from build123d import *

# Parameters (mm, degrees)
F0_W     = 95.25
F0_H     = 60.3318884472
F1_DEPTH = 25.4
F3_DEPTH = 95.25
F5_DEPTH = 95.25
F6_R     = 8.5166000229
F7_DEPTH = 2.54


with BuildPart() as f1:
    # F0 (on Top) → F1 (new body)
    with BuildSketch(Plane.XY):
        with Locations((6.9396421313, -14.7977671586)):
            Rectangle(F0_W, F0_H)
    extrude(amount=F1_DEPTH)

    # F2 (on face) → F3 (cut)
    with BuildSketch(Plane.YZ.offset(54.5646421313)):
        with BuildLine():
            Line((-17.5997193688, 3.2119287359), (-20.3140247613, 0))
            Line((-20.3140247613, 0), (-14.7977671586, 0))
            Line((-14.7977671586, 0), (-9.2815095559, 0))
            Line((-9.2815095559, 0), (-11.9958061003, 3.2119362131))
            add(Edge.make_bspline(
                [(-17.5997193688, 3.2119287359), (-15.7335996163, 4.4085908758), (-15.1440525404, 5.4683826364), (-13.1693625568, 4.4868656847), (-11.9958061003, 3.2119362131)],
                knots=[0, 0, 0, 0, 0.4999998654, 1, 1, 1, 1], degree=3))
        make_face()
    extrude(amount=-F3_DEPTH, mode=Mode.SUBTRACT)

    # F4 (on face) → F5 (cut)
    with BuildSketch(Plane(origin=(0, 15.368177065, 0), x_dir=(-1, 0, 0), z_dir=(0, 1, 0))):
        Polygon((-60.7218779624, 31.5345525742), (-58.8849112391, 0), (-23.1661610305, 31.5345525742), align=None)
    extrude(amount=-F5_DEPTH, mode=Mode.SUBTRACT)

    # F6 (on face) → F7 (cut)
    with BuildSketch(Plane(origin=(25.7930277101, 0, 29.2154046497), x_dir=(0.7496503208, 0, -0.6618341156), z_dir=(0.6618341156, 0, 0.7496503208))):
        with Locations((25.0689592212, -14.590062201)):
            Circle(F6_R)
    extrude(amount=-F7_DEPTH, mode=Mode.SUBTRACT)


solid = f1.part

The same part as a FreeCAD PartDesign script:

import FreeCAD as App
import Part
import Sketcher

V = App.Vector
Q = App.Units.Quantity

doc = App.newDocument("Part")
body = doc.addObject("PartDesign::Body", "Body")

sketch1 = body.newObject("Sketcher::SketchObject", "Sketch")
sketch1.AttachmentSupport = (doc.getObject("XY_Plane"), [""])
sketch1.MapMode = "FlatFace"
sketch1.addGeometry(Part.LineSegment(V(-40.685358, 15.368177, 0), V(-40.685358, -44.963711, 0)), False)
sketch1.addGeometry(Part.LineSegment(V(-40.685358, -44.963711, 0), V(54.564642, -44.963711, 0)), False)
sketch1.addGeometry(Part.LineSegment(V(54.564642, -44.963711, 0), V(54.564642, 15.368177, 0)), False)
sketch1.addGeometry(Part.LineSegment(V(54.564642, 15.368177, 0), V(-40.685358, 15.368177, 0)), False)
sketch1.addConstraint(Sketcher.Constraint("Coincident", 0, 2, 1, 1))
sketch1.addConstraint(Sketcher.Constraint("Coincident", 1, 2, 2, 1))
sketch1.addConstraint(Sketcher.Constraint("Coincident", 2, 2, 3, 1))
sketch1.addConstraint(Sketcher.Constraint("Coincident", 3, 2, 0, 1))
sketch1.addConstraint(Sketcher.Constraint("Vertical", 0))
sketch1.addConstraint(Sketcher.Constraint("Horizontal", 1))
sketch1.addConstraint(Sketcher.Constraint("Vertical", 2))
sketch1.addConstraint(Sketcher.Constraint("Horizontal", 3))
sketch1.addConstraint(Sketcher.Constraint("DistanceX", 1, 1, 1, 2, Q("3.75 in")))
sketch1.addConstraint(Sketcher.Constraint("DistanceY", 0, 2, 0, 1, 60.331888))
sketch1.addConstraint(Sketcher.Constraint("DistanceY", 0, 2, -1, 1, 44.963711))
sketch1.addConstraint(Sketcher.Constraint("DistanceX", 0, 2, -1, 1, 40.685358))
pad1 = body.newObject("PartDesign::Pad", "Pad")
pad1.Profile = sketch1
pad1.Length = Q("1 in")

sketch2 = body.newObject("Sketcher::SketchObject", "Sketch001")
sketch2.AttachmentSupport = (doc.getObject("YZ_Plane"), [""])
sketch2.MapMode = "FlatFace"
sketch2.AttachmentOffset = App.Placement(V(0, 0, 54.564642), App.Rotation())
sketch2.addGeometry(Part.LineSegment(V(-17.599719, 3.211929, 0), V(-20.314025, 0, 0)), False)
sketch2.addGeometry(Part.LineSegment(V(-20.314025, 0, 0), V(-9.28151, 0, 0)), False)
sketch2.addGeometry(Part.LineSegment(V(-9.28151, 0, 0), V(-11.995806, 3.211936, 0)), False)
sketch2.addGeometry(Part.BSplineCurve([V(-17.599719, 3.211929, 0), V(-15.7336, 4.408591, 0), V(-15.144053, 5.468383, 0), V(-13.169363, 4.486866, 0), V(-11.995806, 3.211936, 0)], [4, 1, 4], [0, 0.499999865, 1], False, 3, [1, 1, 1, 1, 1], False), False)
sketch2.addConstraint(Sketcher.Constraint("Block", 3))
sketch2.addConstraint(Sketcher.Constraint("Coincident", 0, 2, 1, 1))
sketch2.addConstraint(Sketcher.Constraint("Coincident", 1, 2, 2, 1))
sketch2.addConstraint(Sketcher.Constraint("Coincident", 2, 2, 3, 2))
sketch2.addConstraint(Sketcher.Constraint("Coincident", 3, 1, 0, 1))
sketch2.addConstraint(Sketcher.Constraint("Horizontal", 1))
sketch2.addConstraint(Sketcher.Constraint("PointOnObject", 0, 2, -1))
sketch2.addConstraint(Sketcher.Constraint("Equal", 0, 2))
sketch2.addConstraint(Sketcher.Constraint("Angle", 2, Q("130.2 deg")))
pocket1 = body.newObject("PartDesign::Pocket", "Pocket")
pocket1.Profile = sketch2
pocket1.Length = Q("3.75 in")

sketch3 = body.newObject("Sketcher::SketchObject", "Sketch002")
sketch3.AttachmentSupport = (doc.getObject("XZ_Plane"), [""])
sketch3.MapMode = "FlatFace"
sketch3.AttachmentOffset = App.Placement(V(0, 0, -15.368177), App.Rotation())
sketch3.addGeometry(Part.LineSegment(V(60.721878, 31.534553, 0), V(58.884911, 0, 0)), False)
sketch3.addGeometry(Part.LineSegment(V(58.884911, 0, 0), V(23.166161, 31.534553, 0)), False)
sketch3.addGeometry(Part.LineSegment(V(23.166161, 31.534553, 0), V(60.721878, 31.534553, 0)), False)
sketch3.addConstraint(Sketcher.Constraint("Coincident", 0, 2, 1, 1))
sketch3.addConstraint(Sketcher.Constraint("Coincident", 1, 2, 2, 1))
sketch3.addConstraint(Sketcher.Constraint("Coincident", 2, 2, 0, 1))
sketch3.addConstraint(Sketcher.Constraint("Horizontal", 2))
sketch3.addConstraint(Sketcher.Constraint("PointOnObject", 0, 2, -1))
sketch3.addConstraint(Sketcher.Constraint("DistanceX", -1, 1, 2, 2, Q("2.3906251 in")))
sketch3.addConstraint(Sketcher.Constraint("DistanceX", 1, 2, 0, 2, Q("1.40625 in")))
sketch3.addConstraint(Sketcher.Constraint("Distance", 0, 31.588011))
sketch3.addConstraint(Sketcher.Constraint("DistanceX", 2, 1, 2, 2, 37.555717))
pocket2 = body.newObject("PartDesign::Pocket", "Pocket001")
pocket2.Profile = sketch3
pocket2.Length = Q("3.75 in")
pocket2.Reversed = True

sketch4 = body.newObject("Sketcher::SketchObject", "Sketch003")
sketch4.Placement = App.Placement(V(25.793028, 0, 29.215405), App.Rotation(V(0.749650321, 0, -0.661834116), V(0, 1.000000001, 0), V(0.661834116, 0, 0.749650321), "ZXY"))
sketch4.addGeometry(Part.Circle(V(25.068959, -14.590062, 0), V(0, 0, 1), 8.5166), False)
sketch4.addConstraint(Sketcher.Constraint("Diameter", 0, 17.0332))
sketch4.addConstraint(Sketcher.Constraint("DistanceX", -1, 1, 0, 3, 25.068959))
sketch4.addConstraint(Sketcher.Constraint("DistanceY", 0, 3, -1, 1, 14.590062))
pocket3 = body.newObject("PartDesign::Pocket", "Pocket002")
pocket3.Profile = sketch4
pocket3.Length = Q("0.1 in")

doc.recompute()
